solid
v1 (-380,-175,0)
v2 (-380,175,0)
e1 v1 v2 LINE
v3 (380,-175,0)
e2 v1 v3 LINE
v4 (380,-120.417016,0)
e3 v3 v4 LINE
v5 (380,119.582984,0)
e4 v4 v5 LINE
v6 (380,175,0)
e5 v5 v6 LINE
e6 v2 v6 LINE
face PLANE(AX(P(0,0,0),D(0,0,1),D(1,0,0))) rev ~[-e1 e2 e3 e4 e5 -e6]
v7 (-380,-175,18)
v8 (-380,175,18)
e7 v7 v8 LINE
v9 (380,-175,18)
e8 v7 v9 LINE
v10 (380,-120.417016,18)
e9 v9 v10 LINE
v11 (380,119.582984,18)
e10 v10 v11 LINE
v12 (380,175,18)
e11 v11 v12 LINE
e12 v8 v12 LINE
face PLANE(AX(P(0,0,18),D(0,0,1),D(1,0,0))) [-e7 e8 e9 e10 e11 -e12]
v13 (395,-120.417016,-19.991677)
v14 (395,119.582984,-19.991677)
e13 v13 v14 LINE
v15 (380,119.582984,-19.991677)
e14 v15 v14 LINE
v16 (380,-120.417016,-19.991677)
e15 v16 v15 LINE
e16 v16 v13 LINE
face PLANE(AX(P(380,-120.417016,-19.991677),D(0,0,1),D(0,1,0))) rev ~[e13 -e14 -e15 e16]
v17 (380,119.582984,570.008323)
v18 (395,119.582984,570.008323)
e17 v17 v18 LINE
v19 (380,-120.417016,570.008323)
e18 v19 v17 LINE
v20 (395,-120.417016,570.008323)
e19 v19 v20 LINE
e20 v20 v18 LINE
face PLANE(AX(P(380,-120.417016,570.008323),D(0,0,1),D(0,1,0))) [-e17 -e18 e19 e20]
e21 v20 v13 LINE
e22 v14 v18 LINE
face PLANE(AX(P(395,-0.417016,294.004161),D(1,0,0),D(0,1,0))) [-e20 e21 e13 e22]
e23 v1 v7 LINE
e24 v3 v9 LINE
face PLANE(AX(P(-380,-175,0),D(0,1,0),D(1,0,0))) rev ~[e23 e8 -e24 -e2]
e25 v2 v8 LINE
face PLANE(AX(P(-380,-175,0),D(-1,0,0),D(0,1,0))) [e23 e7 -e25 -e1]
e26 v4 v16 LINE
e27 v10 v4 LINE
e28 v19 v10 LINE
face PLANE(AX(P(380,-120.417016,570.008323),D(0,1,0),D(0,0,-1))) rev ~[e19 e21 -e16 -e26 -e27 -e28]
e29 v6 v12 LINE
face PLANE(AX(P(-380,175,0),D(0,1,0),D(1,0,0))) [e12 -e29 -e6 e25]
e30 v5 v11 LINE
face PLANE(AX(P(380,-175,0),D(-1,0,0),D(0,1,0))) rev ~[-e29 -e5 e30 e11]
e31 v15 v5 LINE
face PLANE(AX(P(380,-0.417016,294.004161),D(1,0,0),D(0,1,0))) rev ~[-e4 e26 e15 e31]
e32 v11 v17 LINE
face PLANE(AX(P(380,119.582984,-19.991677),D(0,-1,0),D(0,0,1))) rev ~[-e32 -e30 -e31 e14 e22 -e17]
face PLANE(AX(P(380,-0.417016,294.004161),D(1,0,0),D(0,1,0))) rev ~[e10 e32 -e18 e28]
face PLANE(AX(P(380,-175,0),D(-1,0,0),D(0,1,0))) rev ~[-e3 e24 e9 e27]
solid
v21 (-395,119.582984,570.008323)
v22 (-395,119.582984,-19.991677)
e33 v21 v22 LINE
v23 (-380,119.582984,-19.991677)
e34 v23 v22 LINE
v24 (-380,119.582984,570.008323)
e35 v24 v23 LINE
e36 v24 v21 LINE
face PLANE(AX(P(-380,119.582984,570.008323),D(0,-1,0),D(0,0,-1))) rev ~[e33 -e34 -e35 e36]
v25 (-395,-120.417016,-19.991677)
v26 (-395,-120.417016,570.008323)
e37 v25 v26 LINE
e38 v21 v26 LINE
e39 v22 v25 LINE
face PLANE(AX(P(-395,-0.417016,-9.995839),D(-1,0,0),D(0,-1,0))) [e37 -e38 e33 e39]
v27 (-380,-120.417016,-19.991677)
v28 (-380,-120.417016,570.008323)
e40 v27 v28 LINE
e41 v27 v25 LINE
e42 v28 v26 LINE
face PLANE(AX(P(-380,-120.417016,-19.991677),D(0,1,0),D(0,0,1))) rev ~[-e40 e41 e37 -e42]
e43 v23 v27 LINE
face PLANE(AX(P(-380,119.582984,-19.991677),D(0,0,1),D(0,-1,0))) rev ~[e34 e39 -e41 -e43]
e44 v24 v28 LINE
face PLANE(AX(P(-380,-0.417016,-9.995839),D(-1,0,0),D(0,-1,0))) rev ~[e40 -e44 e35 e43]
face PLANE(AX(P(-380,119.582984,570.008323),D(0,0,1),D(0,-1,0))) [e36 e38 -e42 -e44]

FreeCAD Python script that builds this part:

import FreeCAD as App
import Part
import Sketcher
Q = App.Units.Quantity


def add_polygon(sketch, points):
    """Adds a closed chain of lines whose ends are joined by coincident constraints."""
    first, n = sketch.GeometryCount, len(points)
    for a, b in zip(points, points[1:] + points[:1]):
        sketch.addGeometry(Part.LineSegment(App.Vector(*a, 0), App.Vector(*b, 0)), False)
    for i in range(n):
        sketch.addConstraint(Sketcher.Constraint("Coincident", first + i, 2, first + (i + 1) % n, 1))

doc = App.newDocument("Part")
body = doc.addObject("PartDesign::Body", "Body")

sketch1 = body.newObject("Sketcher::SketchObject", "Sketch")
sketch1.AttachmentSupport = (doc.getObject("XY_Plane"), [""])
sketch1.MapMode = "FlatFace"
add_polygon(sketch1, [(-380, 175), (-380, -175), (380, -175), (380, 175)])
sketch1.addConstraint([
    Sketcher.Constraint("Vertical", 0),
    Sketcher.Constraint("Horizontal", 1),
    Sketcher.Constraint("Vertical", 2),
    Sketcher.Constraint("Horizontal", 3),
    Sketcher.Constraint("Symmetric", 0, 2, 2, 2, -1, 1),
    Sketcher.Constraint("DistanceX", 1, 1, 1, 2, Q("760 mm")),
    Sketcher.Constraint("DistanceY", 0, 2, 0, 1, Q("350 mm")),
])
pad1 = body.newObject("PartDesign::Pad", "Pad")
pad1.Profile = sketch1
pad1.Length = 18

sketch2 = body.newObject("Sketcher::SketchObject", "Sketch001")
sketch2.AttachmentSupport = (doc.getObject("YZ_Plane"), [""])
sketch2.MapMode = "FlatFace"
sketch2.AttachmentOffset = App.Placement(App.Vector(0, 0, 380), App.Rotation())
add_polygon(sketch2, [(-120.417016, 570.008323), (-120.417016, -19.991677), (119.582984, -19.991677), (119.582984, 570.008323)])
sketch2.addConstraint([
    Sketcher.Constraint("Vertical", 0),
    Sketcher.Constraint("Horizontal", 1),
    Sketcher.Constraint("Vertical", 2),
    Sketcher.Constraint("Horizontal", 3),
    Sketcher.Constraint("DistanceX", 1, 1, 1, 2, Q("240 mm")),
    Sketcher.Constraint("DistanceY", 0, 2, 0, 1, Q("590 mm")),
    Sketcher.Constraint("DistanceX", 0, 2, -1, 1, Q("120.417016 mm")),
    Sketcher.Constraint("DistanceY", 0, 2, -1, 1, Q("19.991677 mm")),
])
pad2 = body.newObject("PartDesign::Pad", "Pad001")
pad2.Profile = sketch2
pad2.Length = 15
body2 = doc.addObject("PartDesign::Body", "Body001")

sketch3 = body2.newObject("Sketcher::SketchObject", "Sketch002")
sketch3.AttachmentSupport = (doc.getObject("YZ_Plane001"), [""])
sketch3.MapMode = "FlatFace"
sketch3.AttachmentOffset = App.Placement(App.Vector(0, 0, -380), App.Rotation())
add_polygon(sketch3, [(119.582984, -19.991677), (-120.417016, -19.991677), (-120.417016, 570.008323), (119.582984, 570.008323)])
sketch3.addConstraint([
    Sketcher.Constraint("Horizontal", 0),
    Sketcher.Constraint("Vertical", 1),
    Sketcher.Constraint("Horizontal", 2),
    Sketcher.Constraint("Vertical", 3),
    Sketcher.Constraint("DistanceX", 0, 2, 0, 1, Q("240 mm")),
    Sketcher.Constraint("DistanceY", 1, 1, 1, 2, Q("590 mm")),
    Sketcher.Constraint("DistanceX", 0, 2, -1, 1, Q("120.417016 mm")),
    Sketcher.Constraint("DistanceY", 0, 2, -1, 1, Q("19.991677 mm")),
])
pad3 = body2.newObject("PartDesign::Pad", "Pad002")
pad3.Profile = sketch3
pad3.Length = 15
pad3.Reversed = True

doc.recompute()
